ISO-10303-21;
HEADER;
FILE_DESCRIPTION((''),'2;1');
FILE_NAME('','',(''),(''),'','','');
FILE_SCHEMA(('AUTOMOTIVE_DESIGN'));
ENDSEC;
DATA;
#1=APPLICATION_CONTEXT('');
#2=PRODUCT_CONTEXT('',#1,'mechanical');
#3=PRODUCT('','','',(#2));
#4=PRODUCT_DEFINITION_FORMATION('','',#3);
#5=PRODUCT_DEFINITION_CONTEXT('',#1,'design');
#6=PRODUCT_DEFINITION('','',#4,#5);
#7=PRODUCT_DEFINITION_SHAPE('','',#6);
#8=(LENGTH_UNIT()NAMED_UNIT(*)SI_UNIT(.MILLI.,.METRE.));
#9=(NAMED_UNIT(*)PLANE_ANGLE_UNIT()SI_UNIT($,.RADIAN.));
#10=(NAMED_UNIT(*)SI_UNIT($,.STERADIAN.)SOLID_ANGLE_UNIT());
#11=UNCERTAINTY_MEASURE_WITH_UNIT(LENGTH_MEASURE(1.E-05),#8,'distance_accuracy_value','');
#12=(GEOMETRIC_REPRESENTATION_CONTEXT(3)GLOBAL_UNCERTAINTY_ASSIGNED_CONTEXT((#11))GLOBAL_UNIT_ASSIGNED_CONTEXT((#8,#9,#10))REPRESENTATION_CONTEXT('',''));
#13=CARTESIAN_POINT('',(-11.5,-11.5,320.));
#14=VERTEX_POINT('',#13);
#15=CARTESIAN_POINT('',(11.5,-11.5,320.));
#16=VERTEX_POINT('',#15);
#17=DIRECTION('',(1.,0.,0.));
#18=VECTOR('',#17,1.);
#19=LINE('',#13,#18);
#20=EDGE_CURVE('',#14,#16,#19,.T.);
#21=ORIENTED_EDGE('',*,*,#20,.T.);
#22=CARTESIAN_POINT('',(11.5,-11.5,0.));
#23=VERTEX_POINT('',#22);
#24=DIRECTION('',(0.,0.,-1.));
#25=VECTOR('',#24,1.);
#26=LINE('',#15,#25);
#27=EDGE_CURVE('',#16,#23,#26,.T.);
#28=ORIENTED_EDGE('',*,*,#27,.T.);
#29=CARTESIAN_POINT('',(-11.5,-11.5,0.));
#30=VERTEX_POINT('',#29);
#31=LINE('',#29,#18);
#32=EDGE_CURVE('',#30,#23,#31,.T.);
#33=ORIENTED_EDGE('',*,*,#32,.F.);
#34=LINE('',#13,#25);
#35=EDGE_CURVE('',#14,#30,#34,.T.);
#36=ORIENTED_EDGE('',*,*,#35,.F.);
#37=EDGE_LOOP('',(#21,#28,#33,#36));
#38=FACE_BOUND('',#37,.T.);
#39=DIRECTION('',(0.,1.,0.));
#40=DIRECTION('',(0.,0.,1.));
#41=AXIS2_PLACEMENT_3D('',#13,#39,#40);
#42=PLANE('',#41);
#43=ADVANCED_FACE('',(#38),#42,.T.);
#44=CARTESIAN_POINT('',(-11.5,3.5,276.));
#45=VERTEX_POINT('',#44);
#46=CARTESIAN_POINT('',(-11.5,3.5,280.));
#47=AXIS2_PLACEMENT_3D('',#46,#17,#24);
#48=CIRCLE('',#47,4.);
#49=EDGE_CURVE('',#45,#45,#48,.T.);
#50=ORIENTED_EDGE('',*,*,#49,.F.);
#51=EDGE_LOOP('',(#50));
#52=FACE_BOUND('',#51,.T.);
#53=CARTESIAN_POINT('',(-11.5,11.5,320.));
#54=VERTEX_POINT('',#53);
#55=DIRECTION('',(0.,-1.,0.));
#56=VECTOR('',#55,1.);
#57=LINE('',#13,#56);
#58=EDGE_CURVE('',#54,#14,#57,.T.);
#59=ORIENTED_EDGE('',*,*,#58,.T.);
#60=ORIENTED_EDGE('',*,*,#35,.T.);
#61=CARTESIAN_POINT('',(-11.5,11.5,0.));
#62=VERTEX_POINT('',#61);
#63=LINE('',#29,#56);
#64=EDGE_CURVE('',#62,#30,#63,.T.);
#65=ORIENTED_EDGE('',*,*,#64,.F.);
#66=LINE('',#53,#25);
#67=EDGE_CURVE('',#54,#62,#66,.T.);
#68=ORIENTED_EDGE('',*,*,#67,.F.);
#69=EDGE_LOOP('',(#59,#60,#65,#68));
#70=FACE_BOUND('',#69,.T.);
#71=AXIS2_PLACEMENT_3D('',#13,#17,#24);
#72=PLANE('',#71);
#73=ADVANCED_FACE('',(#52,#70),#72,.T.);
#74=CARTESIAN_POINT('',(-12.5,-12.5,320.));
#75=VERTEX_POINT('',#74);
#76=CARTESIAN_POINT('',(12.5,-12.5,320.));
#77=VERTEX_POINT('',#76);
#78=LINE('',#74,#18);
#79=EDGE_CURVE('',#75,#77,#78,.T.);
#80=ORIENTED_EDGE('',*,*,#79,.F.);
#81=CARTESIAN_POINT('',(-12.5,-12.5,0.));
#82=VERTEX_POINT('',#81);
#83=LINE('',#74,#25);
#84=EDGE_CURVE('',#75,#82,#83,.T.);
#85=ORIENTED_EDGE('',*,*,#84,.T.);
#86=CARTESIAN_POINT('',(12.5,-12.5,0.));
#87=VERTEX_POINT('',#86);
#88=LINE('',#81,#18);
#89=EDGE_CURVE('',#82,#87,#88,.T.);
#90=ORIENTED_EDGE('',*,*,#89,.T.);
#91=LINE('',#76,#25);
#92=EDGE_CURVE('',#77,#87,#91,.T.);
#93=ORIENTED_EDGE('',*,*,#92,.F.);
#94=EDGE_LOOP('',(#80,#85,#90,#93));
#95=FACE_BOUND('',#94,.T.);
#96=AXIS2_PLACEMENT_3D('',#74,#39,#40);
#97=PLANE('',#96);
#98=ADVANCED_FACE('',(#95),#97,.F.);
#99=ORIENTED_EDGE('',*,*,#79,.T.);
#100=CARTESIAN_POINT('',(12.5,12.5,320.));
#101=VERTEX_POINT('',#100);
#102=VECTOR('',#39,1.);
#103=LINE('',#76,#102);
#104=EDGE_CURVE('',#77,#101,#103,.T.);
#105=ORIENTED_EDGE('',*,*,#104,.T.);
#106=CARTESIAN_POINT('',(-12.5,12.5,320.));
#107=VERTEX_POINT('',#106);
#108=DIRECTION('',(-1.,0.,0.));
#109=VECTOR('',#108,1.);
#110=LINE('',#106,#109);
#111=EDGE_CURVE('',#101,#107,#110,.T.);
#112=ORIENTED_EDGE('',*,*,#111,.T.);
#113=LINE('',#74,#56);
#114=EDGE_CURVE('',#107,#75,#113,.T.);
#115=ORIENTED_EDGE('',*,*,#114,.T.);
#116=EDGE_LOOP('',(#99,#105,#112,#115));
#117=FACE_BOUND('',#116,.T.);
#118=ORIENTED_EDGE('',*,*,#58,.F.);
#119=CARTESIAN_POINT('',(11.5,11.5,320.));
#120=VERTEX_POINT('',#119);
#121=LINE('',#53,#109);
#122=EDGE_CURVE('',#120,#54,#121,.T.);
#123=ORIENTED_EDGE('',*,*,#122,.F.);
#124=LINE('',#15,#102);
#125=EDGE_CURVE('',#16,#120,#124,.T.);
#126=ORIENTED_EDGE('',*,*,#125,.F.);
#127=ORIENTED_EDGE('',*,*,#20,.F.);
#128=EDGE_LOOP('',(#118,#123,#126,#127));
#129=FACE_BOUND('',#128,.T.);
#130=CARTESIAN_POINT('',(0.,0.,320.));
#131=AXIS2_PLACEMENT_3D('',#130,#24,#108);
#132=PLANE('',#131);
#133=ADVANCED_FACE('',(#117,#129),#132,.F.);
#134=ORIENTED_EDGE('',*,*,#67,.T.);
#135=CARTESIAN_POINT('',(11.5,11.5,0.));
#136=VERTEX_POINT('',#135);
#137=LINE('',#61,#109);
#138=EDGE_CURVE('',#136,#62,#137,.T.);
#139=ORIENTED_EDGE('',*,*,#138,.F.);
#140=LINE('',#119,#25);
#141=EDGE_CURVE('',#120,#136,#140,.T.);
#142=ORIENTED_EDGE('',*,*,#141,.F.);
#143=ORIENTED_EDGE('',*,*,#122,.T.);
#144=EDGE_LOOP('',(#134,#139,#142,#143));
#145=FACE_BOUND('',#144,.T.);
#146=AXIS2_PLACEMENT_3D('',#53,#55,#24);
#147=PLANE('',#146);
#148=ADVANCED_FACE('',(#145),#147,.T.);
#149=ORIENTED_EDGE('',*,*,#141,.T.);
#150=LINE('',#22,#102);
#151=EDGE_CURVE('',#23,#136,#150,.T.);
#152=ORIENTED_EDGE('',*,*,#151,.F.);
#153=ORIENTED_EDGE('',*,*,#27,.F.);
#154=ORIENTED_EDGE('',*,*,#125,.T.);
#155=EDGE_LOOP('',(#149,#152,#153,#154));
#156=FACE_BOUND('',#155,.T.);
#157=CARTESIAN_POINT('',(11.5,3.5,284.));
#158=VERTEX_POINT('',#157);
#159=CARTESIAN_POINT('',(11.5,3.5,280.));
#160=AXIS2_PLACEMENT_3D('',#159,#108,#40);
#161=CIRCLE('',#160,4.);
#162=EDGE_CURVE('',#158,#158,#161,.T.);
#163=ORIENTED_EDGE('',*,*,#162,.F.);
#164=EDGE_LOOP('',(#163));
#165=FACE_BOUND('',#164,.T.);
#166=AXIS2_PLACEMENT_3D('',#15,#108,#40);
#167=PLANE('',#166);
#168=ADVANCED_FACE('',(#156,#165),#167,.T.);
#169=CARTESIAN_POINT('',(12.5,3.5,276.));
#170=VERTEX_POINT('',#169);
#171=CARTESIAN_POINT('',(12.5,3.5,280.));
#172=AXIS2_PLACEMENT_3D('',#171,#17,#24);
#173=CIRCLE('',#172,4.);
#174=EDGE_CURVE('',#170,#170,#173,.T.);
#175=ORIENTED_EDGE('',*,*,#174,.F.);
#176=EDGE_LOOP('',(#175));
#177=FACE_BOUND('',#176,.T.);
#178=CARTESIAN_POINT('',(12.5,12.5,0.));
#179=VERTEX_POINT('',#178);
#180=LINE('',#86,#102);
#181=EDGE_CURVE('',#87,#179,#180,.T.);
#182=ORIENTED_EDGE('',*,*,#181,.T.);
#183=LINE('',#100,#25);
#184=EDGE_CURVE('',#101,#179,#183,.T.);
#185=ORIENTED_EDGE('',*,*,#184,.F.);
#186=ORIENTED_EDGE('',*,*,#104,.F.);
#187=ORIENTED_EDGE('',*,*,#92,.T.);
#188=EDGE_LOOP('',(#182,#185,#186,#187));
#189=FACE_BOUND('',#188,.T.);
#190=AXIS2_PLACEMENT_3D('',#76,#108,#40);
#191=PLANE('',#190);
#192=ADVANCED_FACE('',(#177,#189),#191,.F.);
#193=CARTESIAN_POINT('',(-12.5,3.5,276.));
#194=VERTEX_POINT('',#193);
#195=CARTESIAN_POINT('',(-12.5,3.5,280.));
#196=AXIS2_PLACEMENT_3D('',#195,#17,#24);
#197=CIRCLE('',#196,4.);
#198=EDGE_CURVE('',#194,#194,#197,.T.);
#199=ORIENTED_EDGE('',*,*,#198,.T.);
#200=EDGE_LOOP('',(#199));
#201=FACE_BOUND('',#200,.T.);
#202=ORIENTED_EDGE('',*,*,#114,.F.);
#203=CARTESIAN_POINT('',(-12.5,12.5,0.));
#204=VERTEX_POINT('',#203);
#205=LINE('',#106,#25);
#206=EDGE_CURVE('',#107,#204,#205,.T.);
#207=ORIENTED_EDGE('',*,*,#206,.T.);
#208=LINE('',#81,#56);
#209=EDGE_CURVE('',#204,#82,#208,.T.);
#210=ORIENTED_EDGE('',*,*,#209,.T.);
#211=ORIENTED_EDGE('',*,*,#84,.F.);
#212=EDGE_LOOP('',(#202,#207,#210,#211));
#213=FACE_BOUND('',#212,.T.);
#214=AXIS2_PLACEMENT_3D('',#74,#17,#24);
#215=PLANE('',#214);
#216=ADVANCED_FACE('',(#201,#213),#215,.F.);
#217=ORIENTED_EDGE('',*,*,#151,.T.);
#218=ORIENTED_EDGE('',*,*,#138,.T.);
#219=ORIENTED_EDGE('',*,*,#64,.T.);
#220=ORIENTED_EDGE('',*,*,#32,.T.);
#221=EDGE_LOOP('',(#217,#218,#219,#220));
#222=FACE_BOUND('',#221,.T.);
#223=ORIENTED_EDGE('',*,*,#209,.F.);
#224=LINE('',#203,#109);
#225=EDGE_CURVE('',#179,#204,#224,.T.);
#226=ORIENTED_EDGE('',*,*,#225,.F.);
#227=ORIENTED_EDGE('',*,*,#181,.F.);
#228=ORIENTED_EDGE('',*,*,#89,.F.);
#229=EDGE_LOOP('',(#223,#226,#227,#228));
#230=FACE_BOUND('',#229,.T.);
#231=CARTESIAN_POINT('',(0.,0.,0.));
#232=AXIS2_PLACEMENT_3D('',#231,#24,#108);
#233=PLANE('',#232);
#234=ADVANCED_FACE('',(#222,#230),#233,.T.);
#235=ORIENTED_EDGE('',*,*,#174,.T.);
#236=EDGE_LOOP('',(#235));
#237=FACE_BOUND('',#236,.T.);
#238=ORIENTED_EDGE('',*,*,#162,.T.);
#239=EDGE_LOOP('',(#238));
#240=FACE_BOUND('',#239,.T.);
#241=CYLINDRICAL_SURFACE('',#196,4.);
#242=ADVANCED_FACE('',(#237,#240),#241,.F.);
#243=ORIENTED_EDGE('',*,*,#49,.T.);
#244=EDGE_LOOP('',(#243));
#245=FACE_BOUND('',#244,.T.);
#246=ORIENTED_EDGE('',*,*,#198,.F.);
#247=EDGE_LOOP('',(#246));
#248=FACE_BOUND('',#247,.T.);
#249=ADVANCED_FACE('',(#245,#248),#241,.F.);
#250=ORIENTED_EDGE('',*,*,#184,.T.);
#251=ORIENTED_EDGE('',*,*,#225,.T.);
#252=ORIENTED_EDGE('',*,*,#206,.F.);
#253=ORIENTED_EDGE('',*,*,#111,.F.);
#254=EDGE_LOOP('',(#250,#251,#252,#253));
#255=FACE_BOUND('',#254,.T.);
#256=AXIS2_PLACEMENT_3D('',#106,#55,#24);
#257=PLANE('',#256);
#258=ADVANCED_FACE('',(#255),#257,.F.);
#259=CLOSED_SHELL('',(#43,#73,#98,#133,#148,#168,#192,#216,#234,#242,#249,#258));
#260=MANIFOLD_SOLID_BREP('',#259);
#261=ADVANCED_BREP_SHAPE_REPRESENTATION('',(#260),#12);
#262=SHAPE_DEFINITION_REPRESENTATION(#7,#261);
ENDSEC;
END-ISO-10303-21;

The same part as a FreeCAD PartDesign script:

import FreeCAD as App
import Part
import Sketcher

V = App.Vector
Q = App.Units.Quantity


def add_polygon(sketch, points):
    """Adds a closed chain of lines whose ends are joined by coincident constraints."""
    first, n = sketch.GeometryCount, len(points)
    for a, b in zip(points, points[1:] + points[:1]):
        sketch.addGeometry(Part.LineSegment(App.Vector(*a, 0), App.Vector(*b, 0)), False)
    for i in range(n):
        sketch.addConstraint(Sketcher.Constraint("Coincident", first + i, 2, first + (i + 1) % n, 1))

doc = App.newDocument("Part")
body = doc.addObject("PartDesign::Body", "Body")

# Sketch on XY plane
sketch1 = doc.addObject("Sketcher::SketchObject", "Sketch")
body.addObject(sketch1)
sketch1.AttachmentSupport = (doc.XY_Plane, [""])
sketch1.MapMode = "FlatFace"
add_polygon(sketch1, [(-12, 12), (-12, -12), (12, -12), (12, 12)])  # lines 0-3
add_polygon(sketch1, [(12, -12), (-12, -12), (-12, 12), (12, 12)])  # lines 4-7
sketch1.addConstraint([
    Sketcher.Constraint("Vertical", 0),
    Sketcher.Constraint("Horizontal", 1),
    Sketcher.Constraint("Vertical", 2),
    Sketcher.Constraint("Horizontal", 3),
    Sketcher.Constraint("Horizontal", 4),
    Sketcher.Constraint("Vertical", 5),
    Sketcher.Constraint("Horizontal", 6),
    Sketcher.Constraint("Vertical", 7),
    Sketcher.Constraint("Symmetric", 0, 2, 2, 2, -1, 1),
    Sketcher.Constraint("Symmetric", 4, 2, 6, 2, -1, 1),
    Sketcher.Constraint("Equal", 3, 0),
    Sketcher.Constraint("Equal", 6, 5),
    Sketcher.Constraint("DistanceX", 1, 1, 1, 2, Q("25 mm")),
    Sketcher.Constraint("DistanceX", 4, 2, 4, 1, Q("23 mm")),
])
pad1 = doc.addObject("PartDesign::Pad", "Pad")
body.addObject(pad1)
pad1.Profile = sketch1
pad1.Length = 320

# Sketch on YZ plane
sketch2 = doc.addObject("Sketcher::SketchObject", "Sketch001")
body.addObject(sketch2)
sketch2.AttachmentSupport = (doc.YZ_Plane, [""])
sketch2.MapMode = "FlatFace"
sketch2.AttachmentOffset = App.Placement(V(0, 0, 12.5), App.Rotation())
sketch2.addGeometry(Part.Circle(V(3.5, 280, 0), V(0, 0, 1), 4), False)
sketch2.addConstraint([
    Sketcher.Constraint("Diameter", 0, Q("8 mm")),
    Sketcher.Constraint("DistanceY", -1, 1, 0, 3, Q("280 mm")),
    Sketcher.Constraint("DistanceX", -1, 1, 0, 3, Q("3.5 mm")),
])
pocket1 = doc.addObject("PartDesign::Pocket", "Pocket")
body.addObject(pocket1)
pocket1.Profile = sketch2
pocket1.Type = "ThroughAll"

doc.recompute()
